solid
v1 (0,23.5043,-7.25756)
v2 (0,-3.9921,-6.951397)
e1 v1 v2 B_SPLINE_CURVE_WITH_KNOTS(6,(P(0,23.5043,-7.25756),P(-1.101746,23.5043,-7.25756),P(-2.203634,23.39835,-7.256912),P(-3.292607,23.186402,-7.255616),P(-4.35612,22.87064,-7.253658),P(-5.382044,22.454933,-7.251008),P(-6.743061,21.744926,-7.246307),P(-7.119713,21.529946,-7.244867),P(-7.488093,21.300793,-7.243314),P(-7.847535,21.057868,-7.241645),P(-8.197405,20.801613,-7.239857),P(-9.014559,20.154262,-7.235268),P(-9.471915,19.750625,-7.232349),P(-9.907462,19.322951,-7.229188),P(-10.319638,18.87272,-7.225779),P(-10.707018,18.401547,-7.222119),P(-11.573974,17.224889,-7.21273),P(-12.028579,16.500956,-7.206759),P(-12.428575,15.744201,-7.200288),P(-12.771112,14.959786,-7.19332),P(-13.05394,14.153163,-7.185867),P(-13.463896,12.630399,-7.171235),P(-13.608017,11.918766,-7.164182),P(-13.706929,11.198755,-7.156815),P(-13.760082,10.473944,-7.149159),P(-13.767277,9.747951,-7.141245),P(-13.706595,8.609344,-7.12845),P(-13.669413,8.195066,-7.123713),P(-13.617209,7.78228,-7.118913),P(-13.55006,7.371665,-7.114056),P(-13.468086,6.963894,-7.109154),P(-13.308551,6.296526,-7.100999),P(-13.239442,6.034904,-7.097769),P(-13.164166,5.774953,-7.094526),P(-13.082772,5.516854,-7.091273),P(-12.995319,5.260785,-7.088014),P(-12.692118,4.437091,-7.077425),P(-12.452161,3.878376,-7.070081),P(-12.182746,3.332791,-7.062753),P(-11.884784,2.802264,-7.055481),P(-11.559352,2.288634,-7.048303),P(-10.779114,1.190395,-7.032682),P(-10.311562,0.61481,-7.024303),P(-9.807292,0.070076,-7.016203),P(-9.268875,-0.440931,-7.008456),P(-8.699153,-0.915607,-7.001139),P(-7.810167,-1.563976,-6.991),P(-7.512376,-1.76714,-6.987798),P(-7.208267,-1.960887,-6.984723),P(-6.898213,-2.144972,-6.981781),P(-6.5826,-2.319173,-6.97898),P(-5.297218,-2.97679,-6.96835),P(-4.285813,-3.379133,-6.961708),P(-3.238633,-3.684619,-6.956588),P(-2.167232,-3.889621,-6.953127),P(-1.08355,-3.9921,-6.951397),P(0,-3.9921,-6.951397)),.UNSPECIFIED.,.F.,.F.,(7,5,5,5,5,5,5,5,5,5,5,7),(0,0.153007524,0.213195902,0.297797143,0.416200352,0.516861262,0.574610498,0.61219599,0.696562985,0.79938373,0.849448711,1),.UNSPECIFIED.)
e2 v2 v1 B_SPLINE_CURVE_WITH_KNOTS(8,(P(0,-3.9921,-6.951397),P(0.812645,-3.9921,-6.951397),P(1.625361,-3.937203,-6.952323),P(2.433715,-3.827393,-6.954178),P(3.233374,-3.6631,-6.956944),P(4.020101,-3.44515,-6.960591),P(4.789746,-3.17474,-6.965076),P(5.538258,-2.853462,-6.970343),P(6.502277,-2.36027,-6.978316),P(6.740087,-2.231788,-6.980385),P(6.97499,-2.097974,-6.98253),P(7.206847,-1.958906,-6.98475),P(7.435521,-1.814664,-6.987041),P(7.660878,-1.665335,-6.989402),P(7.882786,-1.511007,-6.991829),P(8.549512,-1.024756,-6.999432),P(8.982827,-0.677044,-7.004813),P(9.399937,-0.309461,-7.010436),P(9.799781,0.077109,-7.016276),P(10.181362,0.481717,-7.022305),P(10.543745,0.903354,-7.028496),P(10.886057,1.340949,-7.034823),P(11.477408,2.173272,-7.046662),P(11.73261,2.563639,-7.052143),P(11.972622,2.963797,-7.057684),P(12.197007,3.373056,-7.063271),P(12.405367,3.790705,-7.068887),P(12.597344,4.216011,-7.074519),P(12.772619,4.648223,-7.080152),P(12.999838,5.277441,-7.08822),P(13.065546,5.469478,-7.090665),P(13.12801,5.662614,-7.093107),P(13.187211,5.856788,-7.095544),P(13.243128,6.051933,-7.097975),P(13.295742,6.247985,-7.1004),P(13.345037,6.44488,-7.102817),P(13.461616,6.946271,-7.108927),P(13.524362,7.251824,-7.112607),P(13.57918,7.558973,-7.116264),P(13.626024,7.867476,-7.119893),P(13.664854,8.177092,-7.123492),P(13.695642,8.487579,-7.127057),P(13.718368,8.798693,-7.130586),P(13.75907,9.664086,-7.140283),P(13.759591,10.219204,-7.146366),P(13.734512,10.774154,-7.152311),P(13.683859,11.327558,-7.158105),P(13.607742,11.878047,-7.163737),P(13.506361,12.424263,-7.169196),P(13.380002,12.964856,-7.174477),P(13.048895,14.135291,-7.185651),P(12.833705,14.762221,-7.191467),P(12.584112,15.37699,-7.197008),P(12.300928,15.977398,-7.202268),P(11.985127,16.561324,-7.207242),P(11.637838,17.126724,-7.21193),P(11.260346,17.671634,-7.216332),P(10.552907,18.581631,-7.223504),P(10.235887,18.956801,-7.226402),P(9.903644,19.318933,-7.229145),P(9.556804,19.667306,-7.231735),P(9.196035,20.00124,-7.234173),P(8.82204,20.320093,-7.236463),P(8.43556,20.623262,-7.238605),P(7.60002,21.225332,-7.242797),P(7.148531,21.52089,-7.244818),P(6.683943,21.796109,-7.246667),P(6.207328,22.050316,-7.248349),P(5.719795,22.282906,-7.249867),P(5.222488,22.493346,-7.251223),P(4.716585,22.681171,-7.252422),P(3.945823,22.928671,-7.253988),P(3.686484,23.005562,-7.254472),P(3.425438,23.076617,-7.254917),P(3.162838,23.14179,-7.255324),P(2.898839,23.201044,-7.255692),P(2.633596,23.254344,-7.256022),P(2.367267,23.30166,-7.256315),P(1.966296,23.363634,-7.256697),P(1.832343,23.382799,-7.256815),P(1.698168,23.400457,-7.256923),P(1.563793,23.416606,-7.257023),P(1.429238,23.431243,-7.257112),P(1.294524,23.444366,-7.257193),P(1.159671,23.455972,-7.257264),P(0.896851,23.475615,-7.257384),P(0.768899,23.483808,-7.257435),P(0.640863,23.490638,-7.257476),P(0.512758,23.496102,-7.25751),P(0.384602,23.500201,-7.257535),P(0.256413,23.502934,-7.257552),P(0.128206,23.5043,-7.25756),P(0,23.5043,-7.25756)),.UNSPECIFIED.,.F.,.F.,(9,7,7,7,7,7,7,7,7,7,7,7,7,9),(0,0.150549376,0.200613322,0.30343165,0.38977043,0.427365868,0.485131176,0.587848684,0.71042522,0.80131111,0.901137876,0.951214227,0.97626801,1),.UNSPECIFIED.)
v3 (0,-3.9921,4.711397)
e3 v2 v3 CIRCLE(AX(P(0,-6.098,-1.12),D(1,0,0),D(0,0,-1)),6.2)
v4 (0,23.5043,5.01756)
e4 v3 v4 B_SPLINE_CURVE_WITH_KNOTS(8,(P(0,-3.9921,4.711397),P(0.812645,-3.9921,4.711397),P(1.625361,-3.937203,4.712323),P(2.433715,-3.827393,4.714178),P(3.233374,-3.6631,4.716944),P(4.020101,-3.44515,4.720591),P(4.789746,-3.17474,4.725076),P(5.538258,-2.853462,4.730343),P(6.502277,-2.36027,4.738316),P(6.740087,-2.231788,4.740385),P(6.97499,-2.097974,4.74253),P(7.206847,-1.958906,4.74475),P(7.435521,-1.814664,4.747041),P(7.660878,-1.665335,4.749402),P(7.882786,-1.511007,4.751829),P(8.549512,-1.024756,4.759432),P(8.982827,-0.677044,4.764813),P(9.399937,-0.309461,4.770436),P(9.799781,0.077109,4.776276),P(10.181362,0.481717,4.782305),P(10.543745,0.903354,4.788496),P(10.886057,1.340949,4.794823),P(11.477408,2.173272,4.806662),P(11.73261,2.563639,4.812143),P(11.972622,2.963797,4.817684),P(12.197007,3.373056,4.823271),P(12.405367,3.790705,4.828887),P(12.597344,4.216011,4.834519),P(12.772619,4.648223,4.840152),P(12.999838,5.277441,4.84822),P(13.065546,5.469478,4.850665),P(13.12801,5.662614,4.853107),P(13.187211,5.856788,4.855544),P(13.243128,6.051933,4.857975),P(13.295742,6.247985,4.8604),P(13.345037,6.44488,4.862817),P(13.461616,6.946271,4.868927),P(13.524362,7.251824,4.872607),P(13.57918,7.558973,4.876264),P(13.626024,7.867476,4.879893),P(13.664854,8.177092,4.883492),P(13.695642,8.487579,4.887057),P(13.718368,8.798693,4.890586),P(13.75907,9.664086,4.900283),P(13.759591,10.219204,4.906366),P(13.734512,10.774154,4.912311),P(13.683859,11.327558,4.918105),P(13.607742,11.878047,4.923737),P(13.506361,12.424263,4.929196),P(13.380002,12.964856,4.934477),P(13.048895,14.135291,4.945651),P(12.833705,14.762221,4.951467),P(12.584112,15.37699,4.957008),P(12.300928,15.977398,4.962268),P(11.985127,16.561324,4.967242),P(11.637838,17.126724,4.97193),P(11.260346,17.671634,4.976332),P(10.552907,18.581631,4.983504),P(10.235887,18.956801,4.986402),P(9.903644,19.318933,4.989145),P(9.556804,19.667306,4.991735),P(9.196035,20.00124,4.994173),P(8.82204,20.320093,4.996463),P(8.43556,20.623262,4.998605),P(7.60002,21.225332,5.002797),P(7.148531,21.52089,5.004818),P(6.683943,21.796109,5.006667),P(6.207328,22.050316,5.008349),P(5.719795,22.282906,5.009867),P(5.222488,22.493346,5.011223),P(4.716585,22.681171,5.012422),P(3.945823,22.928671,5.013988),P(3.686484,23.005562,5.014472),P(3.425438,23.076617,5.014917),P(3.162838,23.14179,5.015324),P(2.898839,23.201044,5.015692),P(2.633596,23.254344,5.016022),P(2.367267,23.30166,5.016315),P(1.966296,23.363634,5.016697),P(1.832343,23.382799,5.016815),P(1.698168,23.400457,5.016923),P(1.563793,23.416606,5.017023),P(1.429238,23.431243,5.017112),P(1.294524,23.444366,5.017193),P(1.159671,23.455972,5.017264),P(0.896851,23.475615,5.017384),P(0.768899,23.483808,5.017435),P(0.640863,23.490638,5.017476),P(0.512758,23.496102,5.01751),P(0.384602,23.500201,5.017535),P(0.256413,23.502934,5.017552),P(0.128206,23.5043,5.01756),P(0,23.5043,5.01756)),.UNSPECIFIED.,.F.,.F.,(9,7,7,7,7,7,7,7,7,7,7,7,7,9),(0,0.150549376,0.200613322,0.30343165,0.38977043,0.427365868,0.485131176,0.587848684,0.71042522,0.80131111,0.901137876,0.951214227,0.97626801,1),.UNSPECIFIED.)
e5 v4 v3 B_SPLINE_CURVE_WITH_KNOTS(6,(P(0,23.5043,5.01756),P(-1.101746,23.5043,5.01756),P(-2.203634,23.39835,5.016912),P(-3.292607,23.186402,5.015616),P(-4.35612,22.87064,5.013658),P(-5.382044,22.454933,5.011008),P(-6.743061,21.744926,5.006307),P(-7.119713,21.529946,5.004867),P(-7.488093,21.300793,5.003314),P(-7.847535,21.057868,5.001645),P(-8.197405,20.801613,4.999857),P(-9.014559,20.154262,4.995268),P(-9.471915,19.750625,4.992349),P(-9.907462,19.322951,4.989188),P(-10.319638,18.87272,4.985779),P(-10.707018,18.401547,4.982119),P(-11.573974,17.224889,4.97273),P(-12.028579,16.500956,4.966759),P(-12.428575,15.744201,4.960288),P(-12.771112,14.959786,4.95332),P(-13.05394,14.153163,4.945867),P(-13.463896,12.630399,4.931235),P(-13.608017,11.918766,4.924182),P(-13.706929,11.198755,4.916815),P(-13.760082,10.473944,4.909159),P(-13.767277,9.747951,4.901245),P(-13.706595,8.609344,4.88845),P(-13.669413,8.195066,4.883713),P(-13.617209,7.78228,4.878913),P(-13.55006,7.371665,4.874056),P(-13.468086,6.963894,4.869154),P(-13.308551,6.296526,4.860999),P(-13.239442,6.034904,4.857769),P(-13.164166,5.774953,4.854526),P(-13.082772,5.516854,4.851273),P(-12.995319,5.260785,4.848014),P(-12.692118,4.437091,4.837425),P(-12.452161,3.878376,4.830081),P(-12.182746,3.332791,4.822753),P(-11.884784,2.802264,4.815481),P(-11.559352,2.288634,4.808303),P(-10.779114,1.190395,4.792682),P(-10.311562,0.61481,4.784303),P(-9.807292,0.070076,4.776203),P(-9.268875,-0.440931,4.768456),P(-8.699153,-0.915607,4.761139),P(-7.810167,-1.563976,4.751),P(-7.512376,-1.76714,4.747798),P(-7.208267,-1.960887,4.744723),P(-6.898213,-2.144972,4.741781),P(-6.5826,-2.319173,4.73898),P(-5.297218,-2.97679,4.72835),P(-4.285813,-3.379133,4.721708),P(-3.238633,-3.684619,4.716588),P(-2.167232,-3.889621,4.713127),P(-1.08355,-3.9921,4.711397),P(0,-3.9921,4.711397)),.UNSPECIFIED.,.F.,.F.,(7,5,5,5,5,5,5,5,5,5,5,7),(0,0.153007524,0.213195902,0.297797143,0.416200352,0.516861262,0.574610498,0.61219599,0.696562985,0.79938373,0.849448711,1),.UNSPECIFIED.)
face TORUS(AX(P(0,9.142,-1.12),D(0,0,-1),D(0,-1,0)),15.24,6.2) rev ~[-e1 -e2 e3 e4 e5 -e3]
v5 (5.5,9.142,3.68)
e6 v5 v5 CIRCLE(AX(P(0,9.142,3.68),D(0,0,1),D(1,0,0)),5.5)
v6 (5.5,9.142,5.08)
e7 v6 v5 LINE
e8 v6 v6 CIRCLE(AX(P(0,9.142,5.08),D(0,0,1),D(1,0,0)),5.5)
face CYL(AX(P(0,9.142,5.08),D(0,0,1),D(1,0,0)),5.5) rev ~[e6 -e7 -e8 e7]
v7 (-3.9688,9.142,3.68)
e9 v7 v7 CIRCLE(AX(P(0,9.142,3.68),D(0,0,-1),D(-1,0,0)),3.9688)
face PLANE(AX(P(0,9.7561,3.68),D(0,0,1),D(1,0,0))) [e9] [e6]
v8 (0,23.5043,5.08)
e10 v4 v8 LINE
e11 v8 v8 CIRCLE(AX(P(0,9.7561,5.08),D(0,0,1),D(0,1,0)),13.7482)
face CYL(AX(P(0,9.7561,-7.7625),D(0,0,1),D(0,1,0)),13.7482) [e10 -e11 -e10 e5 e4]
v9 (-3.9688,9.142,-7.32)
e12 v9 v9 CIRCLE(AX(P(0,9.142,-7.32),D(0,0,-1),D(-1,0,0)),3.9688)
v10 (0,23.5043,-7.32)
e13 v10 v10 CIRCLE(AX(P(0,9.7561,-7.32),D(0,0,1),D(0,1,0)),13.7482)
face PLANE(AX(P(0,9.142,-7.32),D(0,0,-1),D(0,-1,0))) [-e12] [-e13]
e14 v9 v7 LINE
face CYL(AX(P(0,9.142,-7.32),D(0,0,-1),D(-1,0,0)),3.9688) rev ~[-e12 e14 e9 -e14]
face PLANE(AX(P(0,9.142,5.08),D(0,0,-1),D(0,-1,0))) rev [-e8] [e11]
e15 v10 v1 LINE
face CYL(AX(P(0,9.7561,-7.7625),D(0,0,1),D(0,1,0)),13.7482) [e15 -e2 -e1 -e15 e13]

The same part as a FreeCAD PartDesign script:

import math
import FreeCAD as App
import Part
import Sketcher
from FreeCAD import Vector
Q = App.Units.Quantity

doc = App.newDocument("Part")
body = doc.addObject("PartDesign::Body", "Body")

sketch1 = body.newObject("Sketcher::SketchObject", "Sketch")
sketch1.AttachmentSupport = (doc.getObject("YZ_Plane"), [""])
sketch1.MapMode = "FlatFace"
sketch1.addGeometry([
    Part.ArcOfCircle(Part.Circle(Vector(-6, -1, 0), Vector(0, 0, 1), 6), math.radians(-90), math.radians(90)),
    Part.LineSegment(Vector(-6, -7, 0), Vector(9, -7, 0)),
    Part.LineSegment(Vector(9, -7, 0), Vector(9, 5, 0)),
    Part.LineSegment(Vector(9, 5, 0), Vector(-6, 5, 0)),
], False)
sketch1.addGeometry(Part.LineSegment(Vector(9, 5, 0), Vector(9, -7, 0)), True)
sketch1.addConstraint([
    Sketcher.Constraint("Tangent", 0, 1, 1, 1),
    Sketcher.Constraint("Coincident", 1, 2, 2, 1),
    Sketcher.Constraint("Coincident", 2, 2, 3, 1),
    Sketcher.Constraint("Tangent", 3, 2, 0, 2),
    Sketcher.Constraint("Horizontal", 1),
    Sketcher.Constraint("Vertical", 2),
    Sketcher.Constraint("Horizontal", 3),
    Sketcher.Constraint("Vertical", 4),
    Sketcher.Constraint("Coincident", 4, 1, 2, 2),
    Sketcher.Constraint("Horizontal", 0, 1, 4, 2),
    Sketcher.Constraint("Radius", 0, Q("6.2 mm")),
    Sketcher.Constraint("DistanceX", 1, 1, 1, 2, Q("15.24 mm")),
    Sketcher.Constraint("DistanceY", 0, 3, -1, 1, Q("1.12 mm")),
    Sketcher.Constraint("DistanceX", 0, 3, -1, 1, Q("6.098 mm")),
])
revolution = body.newObject("PartDesign::Revolution", "Revolution")
revolution.Profile = sketch1
revolution.ReferenceAxis = (sketch1, ["Axis0"])
revolution.Angle = 360

sketch2 = body.newObject("Sketcher::SketchObject", "Sketch001")
sketch2.AttachmentSupport = (doc.getObject("XY_Plane"), [""])
sketch2.MapMode = "FlatFace"
sketch2.AttachmentOffset = App.Placement(Vector(0, 0, -7.32), App.Rotation())
sketch2.addGeometry(Part.Circle(Vector(0, 9.1, 0), Vector(0, 0, 1), 4), False)
sketch2.addConstraint([
    Sketcher.Constraint("PointOnObject", 0, 3, -2),
    Sketcher.Constraint("Diameter", 0, Q("7.9376 mm")),
    Sketcher.Constraint("DistanceY", -1, 1, 0, 3, Q("9.142 mm")),
])
pocket1 = body.newObject("PartDesign::Pocket", "Pocket")
pocket1.Profile = sketch2
pocket1.Type = "ThroughAll"
pocket1.Reversed = True

sketch3 = body.newObject("Sketcher::SketchObject", "Sketch002")
sketch3.AttachmentSupport = (doc.getObject("YZ_Plane"), [""])
sketch3.MapMode = "FlatFace"
sketch3.addGeometry([
    Part.LineSegment(Vector(26.3, 7, 0), Vector(23.5, 7, 0)),
    Part.LineSegment(Vector(23.5, 7, 0), Vector(23.5, -7.8, 0)),
    Part.LineSegment(Vector(23.5, -7.8, 0), Vector(26.3, -7.8, 0)),
    Part.LineSegment(Vector(26.3, -7.8, 0), Vector(26.3, 7, 0)),
], False)
sketch3.addGeometry(Part.LineSegment(Vector(9.8, -7.8, 0), Vector(9.8, 7, 0)), True)
sketch3.addConstraint([
    Sketcher.Constraint("Coincident", 0, 2, 1, 1),
    Sketcher.Constraint("Coincident", 1, 2, 2, 1),
    Sketcher.Constraint("Coincident", 2, 2, 3, 1),
    Sketcher.Constraint("Coincident", 3, 2, 0, 1),
    Sketcher.Constraint("Horizontal", 0),
    Sketcher.Constraint("Vertical", 1),
    Sketcher.Constraint("Horizontal", 2),
    Sketcher.Constraint("Vertical", 3),
    Sketcher.Constraint("Vertical", 4),
    Sketcher.Constraint("Horizontal", 2, 2, 4, 1),
    Sketcher.Constraint("Horizontal", 3, 2, 4, 2),
    Sketcher.Constraint("DistanceX", 0, 2, 0, 1, Q("2.7965 mm")),
    Sketcher.Constraint("DistanceY", 1, 2, 1, 1, Q("14.8017 mm")),
    Sketcher.Constraint("DistanceX", -1, 1, 4, 1, Q("9.756 mm")),
    Sketcher.Constraint("DistanceX", -1, 1, 0, 2, Q("23.5043 mm")),
    Sketcher.Constraint("DistanceY", -1, 1, 0, 2, Q("7.0392 mm")),
])
groove = body.newObject("PartDesign::Groove", "Groove")
groove.Profile = sketch3
groove.ReferenceAxis = (sketch3, ["Axis0"])
groove.Angle = 360

sketch4 = body.newObject("Sketcher::SketchObject", "Sketch003")
sketch4.AttachmentSupport = (doc.getObject("XY_Plane"), [""])
sketch4.MapMode = "FlatFace"
sketch4.AttachmentOffset = App.Placement(Vector(0, 0, 5.08), App.Rotation())
sketch4.addGeometry(Part.Circle(Vector(0, 9, 0), Vector(0, 0, 1), 6), False)
sketch4.addConstraint([
    Sketcher.Constraint("PointOnObject", 0, 3, -2),
    Sketcher.Constraint("Diameter", 0, Q("11 mm")),
    Sketcher.Constraint("DistanceY", -1, 1, 0, 3, Q("9.142 mm")),
])
pocket2 = body.newObject("PartDesign::Pocket", "Pocket001")
pocket2.Profile = sketch4
pocket2.Length = 1.4

doc.recompute()
